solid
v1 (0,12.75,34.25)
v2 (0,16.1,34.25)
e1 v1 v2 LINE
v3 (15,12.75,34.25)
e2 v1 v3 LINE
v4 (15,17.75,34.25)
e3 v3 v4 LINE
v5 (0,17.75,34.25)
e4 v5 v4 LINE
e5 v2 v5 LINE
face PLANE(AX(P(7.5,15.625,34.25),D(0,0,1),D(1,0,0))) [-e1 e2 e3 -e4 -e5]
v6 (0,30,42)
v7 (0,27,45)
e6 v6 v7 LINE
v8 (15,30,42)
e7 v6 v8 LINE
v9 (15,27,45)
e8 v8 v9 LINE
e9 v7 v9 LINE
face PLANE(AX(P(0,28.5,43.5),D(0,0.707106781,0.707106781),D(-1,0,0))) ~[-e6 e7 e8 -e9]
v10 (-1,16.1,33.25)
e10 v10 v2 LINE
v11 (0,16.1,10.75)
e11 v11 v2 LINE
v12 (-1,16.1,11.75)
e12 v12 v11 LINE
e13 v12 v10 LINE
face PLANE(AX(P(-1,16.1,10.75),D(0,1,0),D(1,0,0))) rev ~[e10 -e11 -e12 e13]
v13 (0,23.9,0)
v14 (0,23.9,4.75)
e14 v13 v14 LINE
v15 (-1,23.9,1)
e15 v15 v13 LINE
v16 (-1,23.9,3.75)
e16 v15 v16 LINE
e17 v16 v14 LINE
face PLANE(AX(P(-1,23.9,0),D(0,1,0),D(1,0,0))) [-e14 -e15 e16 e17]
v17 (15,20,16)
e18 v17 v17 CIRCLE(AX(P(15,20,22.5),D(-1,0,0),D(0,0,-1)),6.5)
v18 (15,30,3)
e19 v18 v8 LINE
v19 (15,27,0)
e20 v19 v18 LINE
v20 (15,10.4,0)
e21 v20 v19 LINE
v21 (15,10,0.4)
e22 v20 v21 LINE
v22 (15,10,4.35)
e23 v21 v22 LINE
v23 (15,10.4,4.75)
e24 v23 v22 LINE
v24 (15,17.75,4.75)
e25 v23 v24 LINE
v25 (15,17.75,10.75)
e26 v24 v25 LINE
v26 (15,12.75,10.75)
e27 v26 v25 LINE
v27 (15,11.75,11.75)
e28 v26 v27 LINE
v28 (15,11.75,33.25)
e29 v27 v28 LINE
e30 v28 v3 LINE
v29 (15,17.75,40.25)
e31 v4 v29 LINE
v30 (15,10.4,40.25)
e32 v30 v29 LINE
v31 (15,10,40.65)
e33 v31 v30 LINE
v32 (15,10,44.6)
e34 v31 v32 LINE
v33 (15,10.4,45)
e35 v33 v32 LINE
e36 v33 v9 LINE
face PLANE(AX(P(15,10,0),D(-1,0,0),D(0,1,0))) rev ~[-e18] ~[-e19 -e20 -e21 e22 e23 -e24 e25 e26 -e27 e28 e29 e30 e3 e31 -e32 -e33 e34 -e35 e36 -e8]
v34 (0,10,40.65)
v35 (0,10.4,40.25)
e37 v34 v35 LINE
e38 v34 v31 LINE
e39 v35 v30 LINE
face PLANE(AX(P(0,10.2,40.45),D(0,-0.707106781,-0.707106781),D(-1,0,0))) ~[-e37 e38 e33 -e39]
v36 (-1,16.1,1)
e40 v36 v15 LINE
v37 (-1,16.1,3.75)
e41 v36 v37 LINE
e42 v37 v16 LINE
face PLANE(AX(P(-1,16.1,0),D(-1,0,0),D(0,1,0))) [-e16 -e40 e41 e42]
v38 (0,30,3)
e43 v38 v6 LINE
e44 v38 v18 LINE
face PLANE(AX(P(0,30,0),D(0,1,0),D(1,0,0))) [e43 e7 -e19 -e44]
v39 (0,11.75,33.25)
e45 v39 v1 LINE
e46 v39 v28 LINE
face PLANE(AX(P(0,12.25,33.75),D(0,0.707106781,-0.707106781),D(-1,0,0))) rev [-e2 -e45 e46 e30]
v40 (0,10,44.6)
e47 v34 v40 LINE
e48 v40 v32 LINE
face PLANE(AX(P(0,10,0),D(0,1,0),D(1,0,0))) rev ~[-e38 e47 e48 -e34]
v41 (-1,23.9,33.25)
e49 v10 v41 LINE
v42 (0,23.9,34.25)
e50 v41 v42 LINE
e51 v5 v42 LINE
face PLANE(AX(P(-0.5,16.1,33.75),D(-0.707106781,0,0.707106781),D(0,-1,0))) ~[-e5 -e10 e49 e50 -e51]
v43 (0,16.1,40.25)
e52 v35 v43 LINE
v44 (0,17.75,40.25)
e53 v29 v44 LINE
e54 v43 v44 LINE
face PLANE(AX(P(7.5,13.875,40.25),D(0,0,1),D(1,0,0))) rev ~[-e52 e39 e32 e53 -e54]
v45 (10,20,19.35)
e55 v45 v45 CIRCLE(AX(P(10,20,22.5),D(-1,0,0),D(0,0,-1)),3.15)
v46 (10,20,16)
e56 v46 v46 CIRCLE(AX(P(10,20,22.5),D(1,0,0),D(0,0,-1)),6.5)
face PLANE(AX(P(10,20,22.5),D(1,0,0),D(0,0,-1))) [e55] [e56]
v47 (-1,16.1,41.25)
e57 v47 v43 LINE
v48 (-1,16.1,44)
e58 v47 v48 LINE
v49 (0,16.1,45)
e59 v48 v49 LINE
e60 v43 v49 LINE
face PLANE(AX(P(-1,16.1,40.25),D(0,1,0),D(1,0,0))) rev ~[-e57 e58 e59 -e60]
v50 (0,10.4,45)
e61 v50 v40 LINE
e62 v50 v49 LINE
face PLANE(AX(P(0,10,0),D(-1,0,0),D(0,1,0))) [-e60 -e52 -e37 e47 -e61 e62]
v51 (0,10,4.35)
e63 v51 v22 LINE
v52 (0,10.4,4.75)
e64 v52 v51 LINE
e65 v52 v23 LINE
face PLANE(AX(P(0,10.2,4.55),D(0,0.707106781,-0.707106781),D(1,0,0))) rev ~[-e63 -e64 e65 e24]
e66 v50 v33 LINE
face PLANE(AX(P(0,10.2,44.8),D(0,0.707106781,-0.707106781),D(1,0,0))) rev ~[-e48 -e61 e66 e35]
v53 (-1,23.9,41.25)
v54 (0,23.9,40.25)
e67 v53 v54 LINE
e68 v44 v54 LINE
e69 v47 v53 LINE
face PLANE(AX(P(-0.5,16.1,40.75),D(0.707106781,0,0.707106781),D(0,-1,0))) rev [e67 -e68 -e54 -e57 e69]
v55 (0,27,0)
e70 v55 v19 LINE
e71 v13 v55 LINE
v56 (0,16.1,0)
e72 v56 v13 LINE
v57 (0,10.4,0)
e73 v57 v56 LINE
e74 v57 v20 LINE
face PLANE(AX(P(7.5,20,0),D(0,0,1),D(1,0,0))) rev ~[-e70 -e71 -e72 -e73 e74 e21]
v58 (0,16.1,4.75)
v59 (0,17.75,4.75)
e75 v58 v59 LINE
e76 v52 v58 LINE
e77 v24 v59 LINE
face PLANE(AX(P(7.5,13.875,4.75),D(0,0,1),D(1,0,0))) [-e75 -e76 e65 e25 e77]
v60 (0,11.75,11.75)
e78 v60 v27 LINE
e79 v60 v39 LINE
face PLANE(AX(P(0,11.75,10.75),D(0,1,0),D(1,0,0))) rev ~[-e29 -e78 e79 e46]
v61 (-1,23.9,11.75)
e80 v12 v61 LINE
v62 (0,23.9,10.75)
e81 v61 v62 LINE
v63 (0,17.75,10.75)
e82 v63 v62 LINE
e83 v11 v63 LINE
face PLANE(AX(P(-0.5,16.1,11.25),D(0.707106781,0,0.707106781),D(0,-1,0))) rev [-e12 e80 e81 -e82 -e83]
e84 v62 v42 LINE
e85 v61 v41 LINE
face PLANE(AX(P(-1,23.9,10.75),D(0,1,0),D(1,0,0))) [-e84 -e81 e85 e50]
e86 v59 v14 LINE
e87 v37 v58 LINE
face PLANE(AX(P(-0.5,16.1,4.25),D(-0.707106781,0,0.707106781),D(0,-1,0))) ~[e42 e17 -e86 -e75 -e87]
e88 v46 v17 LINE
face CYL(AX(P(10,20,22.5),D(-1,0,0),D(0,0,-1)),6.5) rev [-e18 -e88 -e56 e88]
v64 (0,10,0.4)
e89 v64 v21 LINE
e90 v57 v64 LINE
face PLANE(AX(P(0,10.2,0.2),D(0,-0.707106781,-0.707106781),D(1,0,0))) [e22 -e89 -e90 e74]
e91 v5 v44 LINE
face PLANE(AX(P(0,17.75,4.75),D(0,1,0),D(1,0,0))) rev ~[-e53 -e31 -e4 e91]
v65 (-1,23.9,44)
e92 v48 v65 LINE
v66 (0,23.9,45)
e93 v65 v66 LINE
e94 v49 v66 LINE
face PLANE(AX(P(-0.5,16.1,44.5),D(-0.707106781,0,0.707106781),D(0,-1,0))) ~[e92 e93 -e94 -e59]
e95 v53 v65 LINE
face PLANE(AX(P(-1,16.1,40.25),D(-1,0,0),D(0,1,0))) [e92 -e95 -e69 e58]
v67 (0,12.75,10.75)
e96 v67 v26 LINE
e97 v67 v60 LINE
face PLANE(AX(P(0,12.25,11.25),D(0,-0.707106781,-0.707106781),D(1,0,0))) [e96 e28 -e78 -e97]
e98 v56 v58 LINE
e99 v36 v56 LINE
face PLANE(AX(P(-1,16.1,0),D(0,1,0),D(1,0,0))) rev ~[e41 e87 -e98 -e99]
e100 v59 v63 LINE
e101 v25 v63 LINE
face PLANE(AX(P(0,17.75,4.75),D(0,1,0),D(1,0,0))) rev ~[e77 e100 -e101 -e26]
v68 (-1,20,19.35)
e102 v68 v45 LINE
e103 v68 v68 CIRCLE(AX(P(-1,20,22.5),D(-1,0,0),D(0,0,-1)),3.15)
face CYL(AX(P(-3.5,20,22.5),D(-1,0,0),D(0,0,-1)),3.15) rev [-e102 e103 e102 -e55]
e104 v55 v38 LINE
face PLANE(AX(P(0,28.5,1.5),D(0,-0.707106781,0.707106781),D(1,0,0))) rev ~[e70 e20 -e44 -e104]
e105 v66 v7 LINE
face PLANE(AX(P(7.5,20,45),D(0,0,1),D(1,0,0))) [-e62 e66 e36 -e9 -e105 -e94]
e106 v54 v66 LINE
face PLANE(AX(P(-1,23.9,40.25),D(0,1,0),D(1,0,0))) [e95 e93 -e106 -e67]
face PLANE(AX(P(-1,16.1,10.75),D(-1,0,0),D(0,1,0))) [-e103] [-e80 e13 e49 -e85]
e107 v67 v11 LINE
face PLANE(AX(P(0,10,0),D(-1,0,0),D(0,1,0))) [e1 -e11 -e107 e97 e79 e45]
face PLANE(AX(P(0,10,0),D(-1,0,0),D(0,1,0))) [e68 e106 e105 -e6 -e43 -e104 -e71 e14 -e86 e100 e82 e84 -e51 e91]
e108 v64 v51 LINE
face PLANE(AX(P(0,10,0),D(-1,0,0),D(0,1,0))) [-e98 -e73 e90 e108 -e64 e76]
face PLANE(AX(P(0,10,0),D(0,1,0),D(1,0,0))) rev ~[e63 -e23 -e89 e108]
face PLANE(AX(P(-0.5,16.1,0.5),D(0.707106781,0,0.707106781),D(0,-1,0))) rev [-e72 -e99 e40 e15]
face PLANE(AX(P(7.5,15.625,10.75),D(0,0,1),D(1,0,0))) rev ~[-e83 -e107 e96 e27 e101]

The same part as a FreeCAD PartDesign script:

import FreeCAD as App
import Part
import Sketcher
from FreeCAD import Vector
Q = App.Units.Quantity


def edges_at(feature, points):
    """Names of the edges that pass closest to the given points."""
    edges = feature.Shape.Edges
    near = lambda p: min(range(len(edges)), key=lambda i: edges[i].distToShape(Part.Vertex(*p))[0])
    return sorted({f"Edge{near(p) + 1}" for p in points})


def add_polygon(sketch, points):
    """Adds a closed chain of lines whose ends are joined by coincident constraints."""
    first, n = sketch.GeometryCount, len(points)
    for a, b in zip(points, points[1:] + points[:1]):
        sketch.addGeometry(Part.LineSegment(App.Vector(*a, 0), App.Vector(*b, 0)), False)
    for i in range(n):
        sketch.addConstraint(Sketcher.Constraint("Coincident", first + i, 2, first + (i + 1) % n, 1))

doc = App.newDocument("Part")
params = doc.addObject("Spreadsheet::Sheet", "Params")
for row, (alias, value) in enumerate([
    ("sketch1_diameter", "6.3 mm"),
    ("pad1_length", "18 mm"),
    ("sketch2_diameter", "13 mm"),
    ("pad2_length", "18 mm"),
    ("sketch3_width", "15 mm"),
    ("sketch3_height", "7.75 mm"),
    ("pad3_length", "35.5 mm"),
    ("sketch4_width", "15 mm"),
    ("sketch4_height", "20 mm"),
    ("pad4_length", "45 mm"),
    ("sketch5_width", "15 mm"),
    ("sketch5_height", "7.75 mm"),
    ("pad5_length", "23.5 mm"),
    ("chamfer_size", "0.4 mm"),
    ("chamfer2_size", "1 mm"),
    ("chamfer3_size", "3 mm"),
    ("sketch6_width", "10 mm"),
    ("sketch6_height", "7.8 mm"),
    ("pad6_length", "4.75 mm"),
    ("sketch7_width", "10 mm"),
    ("sketch7_height", "7.8 mm"),
    ("pad7_length", "4.75 mm"),
    ("sketch8_width", "10 mm"),
    ("sketch8_height", "7.8 mm"),
    ("pad8_length", "23.5 mm"),
    ("chamfer4_size", "1 mm"),
], start=1):
    params.set(f"A{row}", alias)
    params.set(f"B{row}", "=" + value)
    params.setAlias(f"B{row}", alias)

body = doc.addObject("PartDesign::Body", "Body")

# Sketch on YZ plane
sketch1 = body.newObject("Sketcher::SketchObject", "Sketch")
sketch1.AttachmentSupport = (doc.getObject("YZ_Plane"), [""])
sketch1.MapMode = "FlatFace"
sketch1.AttachmentOffset = App.Placement(Vector(0, 0, -3.5), App.Rotation())
sketch1.addGeometry(Part.Circle(Vector(20, 22.5, 0), Vector(0, 0, 1), 3.1), False)
sketch1.addConstraint([
    Sketcher.Constraint("Diameter", 0, Q("6.3 mm")),
    Sketcher.Constraint("DistanceX", -1, 1, 0, 3, Q("20 mm")),
    Sketcher.Constraint("DistanceY", -1, 1, 0, 3, Q("22.5 mm")),
])
sketch1.setExpression("Constraints[0]", "Params.sketch1_diameter")
pad1 = body.newObject("PartDesign::Pad", "Pad")
pad1.Profile = sketch1
pad1.setExpression("Length", "Params.pad1_length")
body2 = doc.addObject("PartDesign::Body", "Body001")

# Sketch on YZ plane
sketch2 = body2.newObject("Sketcher::SketchObject", "Sketch001")
sketch2.AttachmentSupport = (doc.getObject("YZ_Plane001"), [""])
sketch2.MapMode = "FlatFace"
sketch2.AttachmentOffset = App.Placement(Vector(0, 0, 10), App.Rotation())
sketch2.addGeometry(Part.Circle(Vector(20, 22, 0), Vector(0, 0, 1), 6), False)
sketch2.addConstraint([
    Sketcher.Constraint("Diameter", 0, Q("13 mm")),
    Sketcher.Constraint("DistanceX", -1, 1, 0, 3, Q("20 mm")),
    Sketcher.Constraint("DistanceY", -1, 1, 0, 3, Q("22.5 mm")),
])
sketch2.setExpression("Constraints[0]", "Params.sketch2_diameter")
pad2 = body2.newObject("PartDesign::Pad", "Pad001")
pad2.Profile = sketch2
pad2.setExpression("Length", "Params.pad2_length")
body3 = doc.addObject("PartDesign::Body", "Body002")

# Sketch on XY plane
sketch3 = body3.newObject("Sketcher::SketchObject", "Sketch002")
sketch3.AttachmentSupport = (doc.getObject("XY_Plane002"), [""])
sketch3.MapMode = "FlatFace"
sketch3.AttachmentOffset = App.Placement(Vector(0, 0, 4.75), App.Rotation())
add_polygon(sketch3, [(0, 18), (0, 10), (15, 10), (15, 18)])  # lines 0-3
sketch3.addConstraint([
    Sketcher.Constraint("Vertical", 0),
    Sketcher.Constraint("Horizontal", 1),
    Sketcher.Constraint("Vertical", 2),
    Sketcher.Constraint("Horizontal", 3),
    Sketcher.Constraint("PointOnObject", 0, 2, -2),
    Sketcher.Constraint("DistanceX", 1, 1, 1, 2, Q("15 mm")),
    Sketcher.Constraint("DistanceY", -1, 1, 0, 2, Q("10 mm")),
    Sketcher.Constraint("DistanceY", 0, 2, 0, 1, Q("7.75 mm")),
])
sketch3.setExpression("Constraints[9]", "Params.sketch3_width")
sketch3.setExpression("Constraints[11]", "Params.sketch3_height")
pad3 = body3.newObject("PartDesign::Pad", "Pad002")
pad3.Profile = sketch3
pad3.setExpression("Length", "Params.pad3_length")
body4 = doc.addObject("PartDesign::Body", "Body003")

# Sketch on XY plane
sketch4 = body4.newObject("Sketcher::SketchObject", "Sketch003")
sketch4.AttachmentSupport = (doc.getObject("XY_Plane003"), [""])
sketch4.MapMode = "FlatFace"
add_polygon(sketch4, [(0, 30), (0, 10), (15, 10), (15, 30)])  # lines 0-3
sketch4.addConstraint([
    Sketcher.Constraint("Vertical", 0),
    Sketcher.Constraint("Horizontal", 1),
    Sketcher.Constraint("Vertical", 2),
    Sketcher.Constraint("Horizontal", 3),
    Sketcher.Constraint("PointOnObject", 0, 2, -2),
    Sketcher.Constraint("DistanceX", 1, 1, 1, 2, Q("15 mm")),
    Sketcher.Constraint("DistanceY", 0, 2, 0, 1, Q("20 mm")),
    Sketcher.Constraint("DistanceY", -1, 1, 0, 2, Q("10 mm")),
])
sketch4.setExpression("Constraints[9]", "Params.sketch4_width")
sketch4.setExpression("Constraints[10]", "Params.sketch4_height")
pad4 = body4.newObject("PartDesign::Pad", "Pad003")
pad4.Profile = sketch4
pad4.setExpression("Length", "Params.pad4_length")
doc.recompute()

boolean = body4.newObject("PartDesign::Boolean", "Boolean")
boolean.Type = "Cut"
boolean.addObjects([body3])
body5 = doc.addObject("PartDesign::Body", "Body004")

# Sketch on XY plane
sketch5 = body5.newObject("Sketcher::SketchObject", "Sketch004")
sketch5.AttachmentSupport = (doc.getObject("XY_Plane004"), [""])
sketch5.MapMode = "FlatFace"
sketch5.AttachmentOffset = App.Placement(Vector(0, 0, 10.75), App.Rotation())
add_polygon(sketch5, [(0, 20), (0, 12), (15, 12), (15, 20)])  # lines 0-3
sketch5.addConstraint([
    Sketcher.Constraint("Vertical", 0),
    Sketcher.Constraint("Horizontal", 1),
    Sketcher.Constraint("Vertical", 2),
    Sketcher.Constraint("Horizontal", 3),
    Sketcher.Constraint("PointOnObject", 0, 2, -2),
    Sketcher.Constraint("DistanceX", 1, 1, 1, 2, Q("15 mm")),
    Sketcher.Constraint("DistanceY", 0, 2, 0, 1, Q("7.75 mm")),
    Sketcher.Constraint("DistanceY", -1, 1, 2, 2, Q("19.5 mm")),
])
sketch5.setExpression("Constraints[9]", "Params.sketch5_width")
sketch5.setExpression("Constraints[10]", "Params.sketch5_height")
pad5 = body5.newObject("PartDesign::Pad", "Pad004")
pad5.Profile = sketch5
pad5.setExpression("Length", "Params.pad5_length")
doc.recompute()

boolean2 = body5.newObject("PartDesign::Boolean", "Boolean001")
boolean2.Type = "Fuse"
boolean2.addObjects([body4])
doc.recompute()

chamfer = body5.newObject("PartDesign::Chamfer", "Chamfer")
chamfer.Base = (boolean2, edges_at(boolean2, [
    (7.5, 10, 40.25),
    (7.5, 10, 4.75),
    (7.5, 10, 0),
    (7.5, 10, 45),
]))
chamfer.setExpression("Size", "Params.chamfer_size")
doc.recompute()

chamfer2 = body5.newObject("PartDesign::Chamfer", "Chamfer001")
chamfer2.Base = (chamfer, edges_at(chamfer, [(7.5, 11.75, 10.75), (7.5, 11.75, 34.25)]))
chamfer2.setExpression("Size", "Params.chamfer2_size")
doc.recompute()

chamfer3 = body5.newObject("PartDesign::Chamfer", "Chamfer002")
chamfer3.Base = (chamfer2, edges_at(chamfer2, [(7.5, 30, 0), (7.5, 30, 45)]))
chamfer3.setExpression("Size", "Params.chamfer3_size")
body6 = doc.addObject("PartDesign::Body", "Body005")

# Sketch on XY plane
sketch6 = body6.newObject("Sketcher::SketchObject", "Sketch005")
sketch6.AttachmentSupport = (doc.getObject("XY_Plane005"), [""])
sketch6.MapMode = "FlatFace"
add_polygon(sketch6, [(-1, 24), (-1, 16), (9, 16), (9, 24)])  # lines 0-3
sketch6.addConstraint([
    Sketcher.Constraint("Vertical", 0),
    Sketcher.Constraint("Horizontal", 1),
    Sketcher.Constraint("Vertical", 2),
    Sketcher.Constraint("Horizontal", 3),
    Sketcher.Constraint("DistanceX", 1, 1, 1, 2, Q("10 mm")),
    Sketcher.Constraint("DistanceY", 0, 2, 0, 1, Q("7.8 mm")),
    Sketcher.Constraint("DistanceX", 0, 2, -1, 1, Q("1 mm")),
    Sketcher.Constraint("DistanceY", -1, 1, 0, 2, Q("16.1 mm")),
])
sketch6.setExpression("Constraints[8]", "Params.sketch6_width")
sketch6.setExpression("Constraints[9]", "Params.sketch6_height")
pad6 = body6.newObject("PartDesign::Pad", "Pad005")
pad6.Profile = sketch6
pad6.setExpression("Length", "Params.pad6_length")
body7 = doc.addObject("PartDesign::Body", "Body006")

# Sketch on XY plane
sketch7 = body7.newObject("Sketcher::SketchObject", "Sketch006")
sketch7.AttachmentSupport = (doc.getObject("XY_Plane006"), [""])
sketch7.MapMode = "FlatFace"
sketch7.AttachmentOffset = App.Placement(Vector(0, 0, 40.25), App.Rotation())
add_polygon(sketch7, [(-1, 24), (-1, 16), (9, 16), (9, 24)])  # lines 0-3
sketch7.addConstraint([
    Sketcher.Constraint("Vertical", 0),
    Sketcher.Constraint("Horizontal", 1),
    Sketcher.Constraint("Vertical", 2),
    Sketcher.Constraint("Horizontal", 3),
    Sketcher.Constraint("DistanceX", 1, 1, 1, 2, Q("10 mm")),
    Sketcher.Constraint("DistanceY", 0, 2, 0, 1, Q("7.8 mm")),
    Sketcher.Constraint("DistanceX", 0, 2, -1, 1, Q("1 mm")),
    Sketcher.Constraint("DistanceY", -1, 1, 0, 2, Q("16.1 mm")),
])
sketch7.setExpression("Constraints[8]", "Params.sketch7_width")
sketch7.setExpression("Constraints[9]", "Params.sketch7_height")
pad7 = body7.newObject("PartDesign::Pad", "Pad006")
pad7.Profile = sketch7
pad7.setExpression("Length", "Params.pad7_length")
body8 = doc.addObject("PartDesign::Body", "Body007")
body8.AllowCompound = True

# Sketch on XY plane
sketch8 = body8.newObject("Sketcher::SketchObject", "Sketch007")
sketch8.AttachmentSupport = (doc.getObject("XY_Plane007"), [""])
sketch8.MapMode = "FlatFace"
sketch8.AttachmentOffset = App.Placement(Vector(0, 0, 10.75), App.Rotation())
add_polygon(sketch8, [(-1, 24), (-1, 16), (9, 16), (9, 24)])  # lines 0-3
sketch8.addConstraint([
    Sketcher.Constraint("Vertical", 0),
    Sketcher.Constraint("Horizontal", 1),
    Sketcher.Constraint("Vertical", 2),
    Sketcher.Constraint("Horizontal", 3),
    Sketcher.Constraint("DistanceX", 1, 1, 1, 2, Q("10 mm")),
    Sketcher.Constraint("DistanceY", 0, 2, 0, 1, Q("7.8 mm")),
    Sketcher.Constraint("DistanceX", 0, 2, -1, 1, Q("1 mm")),
    Sketcher.Constraint("DistanceY", -1, 1, 0, 2, Q("16.1 mm")),
])
sketch8.setExpression("Constraints[8]", "Params.sketch8_width")
sketch8.setExpression("Constraints[9]", "Params.sketch8_height")
pad8 = body8.newObject("PartDesign::Pad", "Pad007")
pad8.Profile = sketch8
pad8.setExpression("Length", "Params.pad8_length")
doc.recompute()

boolean3 = body8.newObject("PartDesign::Boolean", "Boolean002")
boolean3.Type = "Fuse"
boolean3.addObjects([body6])
doc.recompute()

boolean4 = body8.newObject("PartDesign::Boolean", "Boolean003")
boolean4.Type = "Fuse"
boolean4.addObjects([body7])
doc.recompute()

chamfer4 = body8.newObject("PartDesign::Chamfer", "Chamfer003")
chamfer4.Base = (boolean4, edges_at(boolean4, [
    (-1, 20, 34.25),
    (-1, 20, 10.75),
    (-1, 20, 4.75),
    (-1, 20, 0),
    (-1, 20, 45),
    (-1, 20, 40.25),
]))
chamfer4.setExpression("Size", "Params.chamfer4_size")
doc.recompute()

boolean5 = body8.newObject("PartDesign::Boolean", "Boolean004")
boolean5.Type = "Fuse"
boolean5.addObjects([body5])
doc.recompute()

boolean6 = body8.newObject("PartDesign::Boolean", "Boolean005")
boolean6.Type = "Cut"
boolean6.addObjects([body2])
doc.recompute()

boolean7 = body8.newObject("PartDesign::Boolean", "Boolean006")
boolean7.Type = "Cut"
boolean7.addObjects([body])

doc.recompute()
